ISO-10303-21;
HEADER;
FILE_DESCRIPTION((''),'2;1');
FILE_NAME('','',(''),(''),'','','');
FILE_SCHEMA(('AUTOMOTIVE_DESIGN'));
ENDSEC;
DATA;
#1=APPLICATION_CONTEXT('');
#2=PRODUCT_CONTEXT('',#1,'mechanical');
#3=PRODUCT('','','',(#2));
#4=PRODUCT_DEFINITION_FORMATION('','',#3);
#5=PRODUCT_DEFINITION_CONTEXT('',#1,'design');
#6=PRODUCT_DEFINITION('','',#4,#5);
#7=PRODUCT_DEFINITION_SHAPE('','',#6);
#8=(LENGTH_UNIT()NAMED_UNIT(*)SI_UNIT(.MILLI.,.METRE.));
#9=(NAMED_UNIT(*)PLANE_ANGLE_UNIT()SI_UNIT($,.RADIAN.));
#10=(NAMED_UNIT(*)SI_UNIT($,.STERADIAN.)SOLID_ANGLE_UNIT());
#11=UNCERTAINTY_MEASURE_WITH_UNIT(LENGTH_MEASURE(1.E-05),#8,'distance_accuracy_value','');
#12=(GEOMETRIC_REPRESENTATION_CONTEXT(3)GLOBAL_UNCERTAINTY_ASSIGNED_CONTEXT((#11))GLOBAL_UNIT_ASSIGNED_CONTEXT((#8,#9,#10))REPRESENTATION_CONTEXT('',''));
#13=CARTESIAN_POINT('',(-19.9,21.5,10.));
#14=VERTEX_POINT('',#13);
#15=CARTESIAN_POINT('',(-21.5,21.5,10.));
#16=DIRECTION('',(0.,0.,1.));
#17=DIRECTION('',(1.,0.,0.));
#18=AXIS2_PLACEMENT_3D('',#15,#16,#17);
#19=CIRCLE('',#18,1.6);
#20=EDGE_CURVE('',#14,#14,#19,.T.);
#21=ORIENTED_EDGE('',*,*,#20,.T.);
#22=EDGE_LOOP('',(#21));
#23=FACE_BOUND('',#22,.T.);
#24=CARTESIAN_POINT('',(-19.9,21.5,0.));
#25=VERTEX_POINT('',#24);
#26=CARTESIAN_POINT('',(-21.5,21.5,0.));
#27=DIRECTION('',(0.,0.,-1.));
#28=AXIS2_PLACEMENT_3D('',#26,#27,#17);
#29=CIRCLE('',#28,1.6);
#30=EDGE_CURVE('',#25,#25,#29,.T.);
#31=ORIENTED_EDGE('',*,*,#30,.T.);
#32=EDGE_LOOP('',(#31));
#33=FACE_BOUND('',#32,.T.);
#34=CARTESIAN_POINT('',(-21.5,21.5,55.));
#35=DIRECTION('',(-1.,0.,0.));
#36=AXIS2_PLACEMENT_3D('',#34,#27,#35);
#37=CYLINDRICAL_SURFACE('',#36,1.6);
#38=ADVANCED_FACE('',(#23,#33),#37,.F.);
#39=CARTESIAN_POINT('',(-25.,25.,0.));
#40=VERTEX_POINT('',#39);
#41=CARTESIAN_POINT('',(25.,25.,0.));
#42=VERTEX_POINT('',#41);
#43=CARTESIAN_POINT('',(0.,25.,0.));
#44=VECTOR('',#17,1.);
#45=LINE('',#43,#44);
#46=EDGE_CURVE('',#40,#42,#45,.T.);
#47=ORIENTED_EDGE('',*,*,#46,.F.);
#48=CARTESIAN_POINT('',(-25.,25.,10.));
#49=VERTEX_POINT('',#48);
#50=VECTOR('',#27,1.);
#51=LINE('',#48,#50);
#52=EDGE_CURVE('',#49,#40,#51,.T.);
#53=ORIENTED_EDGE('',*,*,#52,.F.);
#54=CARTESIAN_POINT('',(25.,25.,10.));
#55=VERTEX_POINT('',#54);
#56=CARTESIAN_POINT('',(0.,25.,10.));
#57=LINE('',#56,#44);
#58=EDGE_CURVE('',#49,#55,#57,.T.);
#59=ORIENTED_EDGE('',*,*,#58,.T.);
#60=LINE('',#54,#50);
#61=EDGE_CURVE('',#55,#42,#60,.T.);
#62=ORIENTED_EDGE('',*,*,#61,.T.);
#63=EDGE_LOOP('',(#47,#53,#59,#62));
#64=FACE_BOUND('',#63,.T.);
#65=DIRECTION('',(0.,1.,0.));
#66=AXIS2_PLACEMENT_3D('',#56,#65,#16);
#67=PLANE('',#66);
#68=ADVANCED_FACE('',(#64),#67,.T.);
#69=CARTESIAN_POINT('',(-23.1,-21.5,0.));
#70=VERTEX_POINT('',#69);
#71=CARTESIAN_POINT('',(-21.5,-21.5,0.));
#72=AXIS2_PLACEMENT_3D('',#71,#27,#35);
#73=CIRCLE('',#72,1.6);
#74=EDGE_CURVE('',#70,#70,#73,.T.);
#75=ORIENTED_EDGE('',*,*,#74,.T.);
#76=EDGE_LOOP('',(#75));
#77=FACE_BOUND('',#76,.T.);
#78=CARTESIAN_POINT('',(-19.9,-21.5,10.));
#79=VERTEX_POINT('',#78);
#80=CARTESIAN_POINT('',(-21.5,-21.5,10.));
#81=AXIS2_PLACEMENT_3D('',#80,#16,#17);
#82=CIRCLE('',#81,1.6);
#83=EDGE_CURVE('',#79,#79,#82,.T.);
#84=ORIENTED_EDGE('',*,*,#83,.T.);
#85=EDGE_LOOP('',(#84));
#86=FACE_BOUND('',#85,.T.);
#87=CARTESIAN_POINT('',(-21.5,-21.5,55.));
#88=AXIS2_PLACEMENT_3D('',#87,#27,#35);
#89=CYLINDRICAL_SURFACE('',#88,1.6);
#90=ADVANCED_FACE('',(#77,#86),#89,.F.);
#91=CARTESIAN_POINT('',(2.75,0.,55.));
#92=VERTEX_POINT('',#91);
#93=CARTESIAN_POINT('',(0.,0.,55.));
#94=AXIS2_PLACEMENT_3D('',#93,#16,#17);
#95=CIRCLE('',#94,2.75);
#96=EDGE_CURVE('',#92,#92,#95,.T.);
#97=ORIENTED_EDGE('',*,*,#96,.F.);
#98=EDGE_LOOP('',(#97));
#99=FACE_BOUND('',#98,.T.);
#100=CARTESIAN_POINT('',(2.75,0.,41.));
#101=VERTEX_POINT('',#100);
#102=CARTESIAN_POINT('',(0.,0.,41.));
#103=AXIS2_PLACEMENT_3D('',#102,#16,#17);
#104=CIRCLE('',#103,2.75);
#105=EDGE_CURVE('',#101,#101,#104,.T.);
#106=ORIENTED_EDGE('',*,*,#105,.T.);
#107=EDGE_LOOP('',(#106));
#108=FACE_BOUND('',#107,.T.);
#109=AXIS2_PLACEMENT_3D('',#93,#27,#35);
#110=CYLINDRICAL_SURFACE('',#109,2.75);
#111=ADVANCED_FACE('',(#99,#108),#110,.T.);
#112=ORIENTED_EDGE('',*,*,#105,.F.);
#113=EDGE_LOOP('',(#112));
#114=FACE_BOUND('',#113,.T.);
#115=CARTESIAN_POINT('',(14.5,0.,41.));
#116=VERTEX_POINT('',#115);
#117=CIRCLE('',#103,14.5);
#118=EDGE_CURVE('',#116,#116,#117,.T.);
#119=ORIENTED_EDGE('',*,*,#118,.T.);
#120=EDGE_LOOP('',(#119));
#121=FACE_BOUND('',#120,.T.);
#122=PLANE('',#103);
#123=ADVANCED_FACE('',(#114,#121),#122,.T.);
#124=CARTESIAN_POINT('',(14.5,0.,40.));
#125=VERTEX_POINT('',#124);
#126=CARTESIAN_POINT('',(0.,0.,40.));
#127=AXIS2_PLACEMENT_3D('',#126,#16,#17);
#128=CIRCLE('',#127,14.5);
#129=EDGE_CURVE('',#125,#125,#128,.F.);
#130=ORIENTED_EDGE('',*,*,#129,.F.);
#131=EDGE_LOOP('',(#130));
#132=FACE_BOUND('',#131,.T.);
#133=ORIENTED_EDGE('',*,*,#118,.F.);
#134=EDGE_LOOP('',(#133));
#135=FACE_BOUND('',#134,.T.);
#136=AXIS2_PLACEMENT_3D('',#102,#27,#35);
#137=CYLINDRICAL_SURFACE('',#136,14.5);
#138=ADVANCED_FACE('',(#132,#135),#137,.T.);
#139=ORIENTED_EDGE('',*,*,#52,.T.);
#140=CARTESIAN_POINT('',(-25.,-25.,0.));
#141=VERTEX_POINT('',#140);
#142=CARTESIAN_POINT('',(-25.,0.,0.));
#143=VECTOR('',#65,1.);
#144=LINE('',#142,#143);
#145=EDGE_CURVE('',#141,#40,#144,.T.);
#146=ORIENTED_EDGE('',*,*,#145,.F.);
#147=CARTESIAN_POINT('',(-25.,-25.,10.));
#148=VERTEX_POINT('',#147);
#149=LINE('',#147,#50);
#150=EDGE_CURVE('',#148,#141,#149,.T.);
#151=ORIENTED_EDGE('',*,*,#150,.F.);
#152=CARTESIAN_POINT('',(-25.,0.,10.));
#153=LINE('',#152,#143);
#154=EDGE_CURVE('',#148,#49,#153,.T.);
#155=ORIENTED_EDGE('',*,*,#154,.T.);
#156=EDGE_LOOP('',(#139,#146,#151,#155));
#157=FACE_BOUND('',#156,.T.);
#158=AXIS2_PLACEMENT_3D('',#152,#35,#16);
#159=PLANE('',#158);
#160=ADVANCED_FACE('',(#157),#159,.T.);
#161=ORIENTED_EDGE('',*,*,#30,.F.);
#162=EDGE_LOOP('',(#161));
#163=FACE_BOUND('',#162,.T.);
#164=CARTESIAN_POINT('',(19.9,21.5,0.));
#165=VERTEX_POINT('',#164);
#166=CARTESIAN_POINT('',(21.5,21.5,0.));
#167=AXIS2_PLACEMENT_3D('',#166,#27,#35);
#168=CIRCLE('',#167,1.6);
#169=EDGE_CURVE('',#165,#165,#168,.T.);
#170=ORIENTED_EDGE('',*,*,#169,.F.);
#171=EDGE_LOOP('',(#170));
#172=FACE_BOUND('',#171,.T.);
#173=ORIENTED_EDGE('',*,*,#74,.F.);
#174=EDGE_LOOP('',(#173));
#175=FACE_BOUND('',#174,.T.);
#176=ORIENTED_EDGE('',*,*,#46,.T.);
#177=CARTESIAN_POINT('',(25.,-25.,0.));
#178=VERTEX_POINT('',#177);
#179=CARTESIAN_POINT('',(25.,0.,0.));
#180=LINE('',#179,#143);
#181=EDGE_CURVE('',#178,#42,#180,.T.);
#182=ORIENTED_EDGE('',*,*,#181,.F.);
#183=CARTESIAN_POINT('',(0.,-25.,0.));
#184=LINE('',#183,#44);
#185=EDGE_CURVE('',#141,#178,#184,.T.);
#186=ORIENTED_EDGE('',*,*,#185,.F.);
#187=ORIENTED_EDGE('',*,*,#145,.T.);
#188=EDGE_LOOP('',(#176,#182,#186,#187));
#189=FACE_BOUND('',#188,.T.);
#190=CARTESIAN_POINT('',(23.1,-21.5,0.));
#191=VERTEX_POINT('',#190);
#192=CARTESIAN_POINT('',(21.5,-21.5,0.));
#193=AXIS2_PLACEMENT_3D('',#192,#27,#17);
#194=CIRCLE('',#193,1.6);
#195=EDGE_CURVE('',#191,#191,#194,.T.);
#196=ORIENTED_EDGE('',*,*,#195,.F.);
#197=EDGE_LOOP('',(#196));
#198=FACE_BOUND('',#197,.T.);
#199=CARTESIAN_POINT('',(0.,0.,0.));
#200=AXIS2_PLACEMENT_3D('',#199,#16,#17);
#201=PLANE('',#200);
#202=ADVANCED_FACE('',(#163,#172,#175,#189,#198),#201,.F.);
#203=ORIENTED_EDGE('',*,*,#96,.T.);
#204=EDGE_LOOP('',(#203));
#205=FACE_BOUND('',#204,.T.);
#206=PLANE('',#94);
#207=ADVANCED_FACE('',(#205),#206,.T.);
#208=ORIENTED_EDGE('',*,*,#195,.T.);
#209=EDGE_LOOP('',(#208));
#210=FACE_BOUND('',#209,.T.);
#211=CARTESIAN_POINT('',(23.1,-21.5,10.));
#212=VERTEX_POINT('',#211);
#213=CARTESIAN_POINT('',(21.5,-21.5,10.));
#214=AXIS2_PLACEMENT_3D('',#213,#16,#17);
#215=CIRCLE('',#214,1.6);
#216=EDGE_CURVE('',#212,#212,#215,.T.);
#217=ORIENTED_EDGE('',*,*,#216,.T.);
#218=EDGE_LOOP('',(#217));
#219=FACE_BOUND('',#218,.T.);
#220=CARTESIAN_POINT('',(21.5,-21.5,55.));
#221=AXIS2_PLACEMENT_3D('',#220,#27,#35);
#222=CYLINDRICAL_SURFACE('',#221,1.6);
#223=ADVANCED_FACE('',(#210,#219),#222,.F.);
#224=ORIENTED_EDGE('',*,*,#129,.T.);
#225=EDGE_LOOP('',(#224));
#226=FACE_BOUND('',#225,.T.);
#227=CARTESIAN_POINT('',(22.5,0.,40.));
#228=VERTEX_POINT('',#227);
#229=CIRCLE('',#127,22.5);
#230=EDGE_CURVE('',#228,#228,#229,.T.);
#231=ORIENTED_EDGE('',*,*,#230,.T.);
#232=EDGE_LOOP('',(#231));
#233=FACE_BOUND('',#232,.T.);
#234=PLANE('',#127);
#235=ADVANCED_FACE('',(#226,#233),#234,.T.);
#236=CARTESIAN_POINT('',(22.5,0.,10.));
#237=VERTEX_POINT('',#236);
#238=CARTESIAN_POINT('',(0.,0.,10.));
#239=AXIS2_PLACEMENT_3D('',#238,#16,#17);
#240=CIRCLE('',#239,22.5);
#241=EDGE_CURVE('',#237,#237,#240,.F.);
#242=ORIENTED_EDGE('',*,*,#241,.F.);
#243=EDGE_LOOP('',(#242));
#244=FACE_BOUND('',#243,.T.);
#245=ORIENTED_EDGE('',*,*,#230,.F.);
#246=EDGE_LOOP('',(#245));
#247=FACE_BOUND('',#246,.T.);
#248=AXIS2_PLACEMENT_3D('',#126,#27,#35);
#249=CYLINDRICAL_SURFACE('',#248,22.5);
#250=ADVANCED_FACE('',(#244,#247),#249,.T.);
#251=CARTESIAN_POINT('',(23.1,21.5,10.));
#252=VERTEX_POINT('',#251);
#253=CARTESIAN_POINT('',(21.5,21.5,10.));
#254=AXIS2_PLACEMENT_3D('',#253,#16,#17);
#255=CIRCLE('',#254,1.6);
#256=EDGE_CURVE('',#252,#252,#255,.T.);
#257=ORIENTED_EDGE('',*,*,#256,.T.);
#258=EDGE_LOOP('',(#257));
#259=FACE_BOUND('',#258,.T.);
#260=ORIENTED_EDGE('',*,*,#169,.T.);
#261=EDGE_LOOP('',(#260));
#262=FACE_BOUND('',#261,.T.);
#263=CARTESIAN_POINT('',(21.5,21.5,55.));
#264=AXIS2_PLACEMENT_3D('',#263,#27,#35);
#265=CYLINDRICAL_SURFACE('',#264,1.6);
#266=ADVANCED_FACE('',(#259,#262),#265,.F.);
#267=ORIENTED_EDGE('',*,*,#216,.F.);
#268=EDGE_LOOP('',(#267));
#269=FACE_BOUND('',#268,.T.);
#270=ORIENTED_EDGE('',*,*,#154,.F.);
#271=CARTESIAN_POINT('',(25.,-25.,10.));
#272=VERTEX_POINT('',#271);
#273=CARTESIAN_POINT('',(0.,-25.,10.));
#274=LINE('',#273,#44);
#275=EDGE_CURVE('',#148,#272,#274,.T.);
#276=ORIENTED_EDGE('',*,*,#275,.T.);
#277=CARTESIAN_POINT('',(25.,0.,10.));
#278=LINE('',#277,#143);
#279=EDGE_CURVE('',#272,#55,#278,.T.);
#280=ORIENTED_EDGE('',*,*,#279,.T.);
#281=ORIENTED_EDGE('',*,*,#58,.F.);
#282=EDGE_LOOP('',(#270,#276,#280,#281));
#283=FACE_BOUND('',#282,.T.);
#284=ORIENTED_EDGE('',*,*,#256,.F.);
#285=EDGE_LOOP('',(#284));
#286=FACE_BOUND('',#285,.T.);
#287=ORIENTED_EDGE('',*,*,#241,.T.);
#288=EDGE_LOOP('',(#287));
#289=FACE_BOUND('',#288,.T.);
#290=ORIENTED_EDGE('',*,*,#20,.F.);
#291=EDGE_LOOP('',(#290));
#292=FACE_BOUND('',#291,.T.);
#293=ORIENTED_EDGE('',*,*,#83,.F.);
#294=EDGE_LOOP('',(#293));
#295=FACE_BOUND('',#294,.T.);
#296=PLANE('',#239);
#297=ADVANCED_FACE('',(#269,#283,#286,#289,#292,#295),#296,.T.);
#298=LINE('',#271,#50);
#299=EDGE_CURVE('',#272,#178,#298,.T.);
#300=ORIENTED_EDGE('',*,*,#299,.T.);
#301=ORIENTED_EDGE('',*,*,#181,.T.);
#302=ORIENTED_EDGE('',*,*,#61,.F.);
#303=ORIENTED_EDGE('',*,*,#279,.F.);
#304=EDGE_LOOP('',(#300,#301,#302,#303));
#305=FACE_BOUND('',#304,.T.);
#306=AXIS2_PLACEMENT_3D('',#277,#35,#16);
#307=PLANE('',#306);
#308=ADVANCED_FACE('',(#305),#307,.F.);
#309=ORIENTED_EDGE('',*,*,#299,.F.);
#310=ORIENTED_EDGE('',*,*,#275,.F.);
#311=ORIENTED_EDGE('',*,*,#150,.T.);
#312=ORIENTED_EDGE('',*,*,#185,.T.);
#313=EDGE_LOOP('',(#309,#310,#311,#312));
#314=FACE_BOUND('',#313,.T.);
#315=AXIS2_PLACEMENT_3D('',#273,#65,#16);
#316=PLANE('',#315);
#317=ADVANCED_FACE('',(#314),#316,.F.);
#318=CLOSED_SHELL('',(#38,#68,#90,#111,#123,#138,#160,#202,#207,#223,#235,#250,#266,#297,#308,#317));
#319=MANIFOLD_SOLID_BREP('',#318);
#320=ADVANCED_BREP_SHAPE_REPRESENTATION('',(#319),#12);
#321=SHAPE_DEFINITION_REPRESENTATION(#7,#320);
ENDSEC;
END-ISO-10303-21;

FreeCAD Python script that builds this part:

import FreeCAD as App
import Part
import Sketcher
from FreeCAD import Vector
Q = App.Units.Quantity

doc = App.newDocument("Part")
body = doc.addObject("PartDesign::Body", "Body")

# Sketch on XY plane
sketch1 = body.newObject("Sketcher::SketchObject", "Sketch")
sketch1.AttachmentSupport = (doc.getObject("XY_Plane"), [""])
sketch1.MapMode = "FlatFace"
sketch1.addGeometry([
    Part.LineSegment(Vector(-25, 25, 0), Vector(-25, -25, 0)),
    Part.LineSegment(Vector(-25, -25, 0), Vector(25, -25, 0)),
    Part.LineSegment(Vector(25, -25, 0), Vector(25, 25, 0)),
    Part.LineSegment(Vector(25, 25, 0), Vector(-25, 25, 0)),
], False)
sketch1.addConstraint([
    Sketcher.Constraint("Coincident", 0, 2, 1, 1),
    Sketcher.Constraint("Coincident", 1, 2, 2, 1),
    Sketcher.Constraint("Coincident", 2, 2, 3, 1),
    Sketcher.Constraint("Coincident", 3, 2, 0, 1),
    Sketcher.Constraint("Vertical", 0),
    Sketcher.Constraint("Horizontal", 1),
    Sketcher.Constraint("Vertical", 2),
    Sketcher.Constraint("Horizontal", 3),
    Sketcher.Constraint("Symmetric", 0, 2, 2, 2, -1, 1),
    Sketcher.Constraint("Equal", 3, 0),
    Sketcher.Constraint("DistanceX", 1, 1, 1, 2, Q("50 mm")),
])
pad1 = body.newObject("PartDesign::Pad", "Pad")
pad1.Profile = sketch1
pad1.Length = 10

# Sketch on XY plane
sketch2 = body.newObject("Sketcher::SketchObject", "Sketch001")
sketch2.AttachmentSupport = (doc.getObject("XY_Plane"), [""])
sketch2.MapMode = "FlatFace"
sketch2.addGeometry(Part.Circle(Vector(0, 0, 0), Vector(0, 0, 1), 22), False)
sketch2.addConstraint([
    Sketcher.Constraint("Coincident", 0, 3, -1, 1),
    Sketcher.Constraint("Diameter", 0, Q("45 mm")),
])
pad2 = body.newObject("PartDesign::Pad", "Pad001")
pad2.Profile = sketch2
pad2.Length = 40

# Sketch on XY plane
sketch3 = body.newObject("Sketcher::SketchObject", "Sketch002")
sketch3.AttachmentSupport = (doc.getObject("XY_Plane"), [""])
sketch3.MapMode = "FlatFace"
sketch3.addGeometry([
    Part.Circle(Vector(0, 0, 0), Vector(0, 0, 1), 14.5),
    Part.Circle(Vector(0, 0, 0), Vector(0, 0, 1), 2.8),
], False)
sketch3.addConstraint([
    Sketcher.Constraint("Coincident", 0, 3, -1, 1),
    Sketcher.Constraint("Coincident", 1, 3, -1, 1),
    Sketcher.Constraint("Diameter", 0, Q("29 mm")),
    Sketcher.Constraint("Diameter", 1, Q("5.5 mm")),
])
pad3 = body.newObject("PartDesign::Pad", "Pad002")
pad3.Profile = sketch3
pad3.Length = 41

# Sketch on XY plane
sketch4 = body.newObject("Sketcher::SketchObject", "Sketch003")
sketch4.AttachmentSupport = (doc.getObject("XY_Plane"), [""])
sketch4.MapMode = "FlatFace"
sketch4.addGeometry(Part.Circle(Vector(0, 0, 0), Vector(0, 0, 1), 2.8), False)
sketch4.addConstraint([
    Sketcher.Constraint("Coincident", 0, 3, -1, 1),
    Sketcher.Constraint("Diameter", 0, Q("5.5 mm")),
])
pad4 = body.newObject("PartDesign::Pad", "Pad003")
pad4.Profile = sketch4
pad4.Length = 55

# Sketch on XY plane
sketch5 = body.newObject("Sketcher::SketchObject", "Sketch004")
sketch5.AttachmentSupport = (doc.getObject("XY_Plane"), [""])
sketch5.MapMode = "FlatFace"
sketch5.addGeometry([
    Part.Circle(Vector(21.5, 21.5, 0), Vector(0, 0, 1), 1.6),
    Part.Circle(Vector(21.5, -21.5, 0), Vector(0, 0, 1), 1.6),
    Part.Circle(Vector(-21.5, -21.5, 0), Vector(0, 0, 1), 1.6),
    Part.Circle(Vector(-21.5, 21.5, 0), Vector(0, 0, 1), 1.6),
], False)
sketch5.addConstraint([
    Sketcher.Constraint("Equal", 0, 1),
    Sketcher.Constraint("Equal", 1, 2),
    Sketcher.Constraint("Equal", 2, 3),
    Sketcher.Constraint("Symmetric", 0, 3, 2, 3, -1, 1),
    Sketcher.Constraint("Symmetric", 1, 3, 3, 3, -1, 1),
    Sketcher.Constraint("Symmetric", 1, 3, 2, 3, -2),
    Sketcher.Constraint("Diameter", 0, Q("3.2 mm")),
    Sketcher.Constraint("DistanceY", 1, 3, 0, 3, Q("43 mm")),
    Sketcher.Constraint("DistanceX", 2, 3, 1, 3, Q("43 mm")),
])
pocket1 = body.newObject("PartDesign::Pocket", "Pocket")
pocket1.Profile = sketch5
pocket1.Type = "ThroughAll"
pocket1.Reversed = True

doc.recompute()
